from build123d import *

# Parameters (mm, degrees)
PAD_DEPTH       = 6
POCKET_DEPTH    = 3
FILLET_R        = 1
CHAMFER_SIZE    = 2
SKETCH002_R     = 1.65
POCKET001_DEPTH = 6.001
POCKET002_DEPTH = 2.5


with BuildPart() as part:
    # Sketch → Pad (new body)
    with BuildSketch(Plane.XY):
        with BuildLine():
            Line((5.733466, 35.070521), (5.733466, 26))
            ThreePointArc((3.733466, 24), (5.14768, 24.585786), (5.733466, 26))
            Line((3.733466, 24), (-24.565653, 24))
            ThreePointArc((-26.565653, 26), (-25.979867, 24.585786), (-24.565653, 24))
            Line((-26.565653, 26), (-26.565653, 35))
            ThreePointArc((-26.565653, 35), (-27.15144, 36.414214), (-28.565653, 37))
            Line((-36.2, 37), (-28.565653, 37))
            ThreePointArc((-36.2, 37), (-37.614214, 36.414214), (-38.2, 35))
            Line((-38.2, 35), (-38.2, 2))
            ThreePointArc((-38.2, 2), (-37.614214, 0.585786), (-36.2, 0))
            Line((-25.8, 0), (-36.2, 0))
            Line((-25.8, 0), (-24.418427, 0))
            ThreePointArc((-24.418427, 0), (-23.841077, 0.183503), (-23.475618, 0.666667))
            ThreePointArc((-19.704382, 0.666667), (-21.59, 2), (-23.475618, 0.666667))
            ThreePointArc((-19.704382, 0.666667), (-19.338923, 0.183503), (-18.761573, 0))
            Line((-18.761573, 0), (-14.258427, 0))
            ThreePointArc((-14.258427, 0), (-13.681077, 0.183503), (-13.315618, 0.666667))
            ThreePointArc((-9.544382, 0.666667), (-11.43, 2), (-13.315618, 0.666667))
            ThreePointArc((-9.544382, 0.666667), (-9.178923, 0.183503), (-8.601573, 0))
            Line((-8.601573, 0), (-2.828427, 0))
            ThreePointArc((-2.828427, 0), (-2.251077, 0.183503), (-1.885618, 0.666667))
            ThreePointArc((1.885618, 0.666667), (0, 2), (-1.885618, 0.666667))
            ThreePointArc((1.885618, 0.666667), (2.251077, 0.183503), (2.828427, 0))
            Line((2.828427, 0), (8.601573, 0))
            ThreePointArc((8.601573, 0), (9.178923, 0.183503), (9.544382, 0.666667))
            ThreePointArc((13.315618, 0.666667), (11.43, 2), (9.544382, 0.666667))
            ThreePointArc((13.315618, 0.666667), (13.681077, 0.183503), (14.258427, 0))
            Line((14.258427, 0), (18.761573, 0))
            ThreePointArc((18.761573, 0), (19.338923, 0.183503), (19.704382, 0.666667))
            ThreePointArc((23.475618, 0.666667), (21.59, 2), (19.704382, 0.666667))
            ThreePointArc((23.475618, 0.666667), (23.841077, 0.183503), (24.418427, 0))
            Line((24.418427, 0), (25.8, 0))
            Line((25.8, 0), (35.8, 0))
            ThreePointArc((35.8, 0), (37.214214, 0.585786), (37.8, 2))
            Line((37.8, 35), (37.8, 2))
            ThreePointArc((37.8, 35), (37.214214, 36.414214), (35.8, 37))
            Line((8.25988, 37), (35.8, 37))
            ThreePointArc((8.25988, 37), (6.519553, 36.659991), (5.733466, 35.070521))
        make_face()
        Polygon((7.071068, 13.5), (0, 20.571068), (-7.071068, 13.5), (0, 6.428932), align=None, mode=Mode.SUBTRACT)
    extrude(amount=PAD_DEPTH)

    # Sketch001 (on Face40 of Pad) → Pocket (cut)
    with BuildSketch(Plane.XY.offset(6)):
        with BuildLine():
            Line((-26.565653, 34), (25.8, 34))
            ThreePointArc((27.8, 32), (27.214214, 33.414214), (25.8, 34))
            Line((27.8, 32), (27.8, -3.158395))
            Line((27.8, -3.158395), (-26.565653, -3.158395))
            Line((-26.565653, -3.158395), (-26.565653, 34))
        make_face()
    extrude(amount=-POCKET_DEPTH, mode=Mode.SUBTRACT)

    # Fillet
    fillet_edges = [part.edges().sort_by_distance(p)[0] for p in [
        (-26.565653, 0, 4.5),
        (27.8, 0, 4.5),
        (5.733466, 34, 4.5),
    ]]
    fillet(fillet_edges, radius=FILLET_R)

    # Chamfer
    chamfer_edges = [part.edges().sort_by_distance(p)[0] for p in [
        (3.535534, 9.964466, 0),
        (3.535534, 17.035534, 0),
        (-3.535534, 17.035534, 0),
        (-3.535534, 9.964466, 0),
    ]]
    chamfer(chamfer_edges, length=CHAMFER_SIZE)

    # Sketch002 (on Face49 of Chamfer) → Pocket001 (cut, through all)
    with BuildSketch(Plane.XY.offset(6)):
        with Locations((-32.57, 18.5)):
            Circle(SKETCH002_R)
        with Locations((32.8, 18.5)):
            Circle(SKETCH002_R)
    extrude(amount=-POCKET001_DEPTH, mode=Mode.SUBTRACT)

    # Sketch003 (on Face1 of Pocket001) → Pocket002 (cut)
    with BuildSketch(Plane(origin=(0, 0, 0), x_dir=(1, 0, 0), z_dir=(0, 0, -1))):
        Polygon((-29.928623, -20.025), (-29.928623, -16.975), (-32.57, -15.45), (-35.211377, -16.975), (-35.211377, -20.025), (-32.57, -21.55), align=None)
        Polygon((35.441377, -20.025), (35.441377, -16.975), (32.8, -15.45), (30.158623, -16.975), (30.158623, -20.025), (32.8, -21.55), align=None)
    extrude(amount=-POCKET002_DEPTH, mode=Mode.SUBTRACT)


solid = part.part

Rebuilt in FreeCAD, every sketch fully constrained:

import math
import FreeCAD as App
import Part
import Sketcher
from FreeCAD import Vector
Q = App.Units.Quantity


def edges_at(feature, points):
    """Names of the edges that pass closest to the given points."""
    edges = feature.Shape.Edges
    near = lambda p: min(range(len(edges)), key=lambda i: edges[i].distToShape(Part.Vertex(*p))[0])
    return sorted({f"Edge{near(p) + 1}" for p in points})

doc = App.newDocument("Part")
body = doc.addObject("PartDesign::Body", "Body")

sketch1 = body.newObject("Sketcher::SketchObject", "Sketch")
sketch1.AttachmentSupport = (doc.getObject("XY_Plane"), [""])
sketch1.MapMode = "FlatFace"
sketch1.addGeometry(Part.LineSegment(Vector(5.7, 35.1, 0), Vector(5.7, 26, 0)), False)
sketch1.addGeometry(Part.ArcOfCircle(Part.Circle(Vector(3.7, 26, 0), Vector(0, 0, 1), 2), math.radians(-90), math.radians(0)), False)
sketch1.addGeometry(Part.LineSegment(Vector(3.7, 24, 0), Vector(-24.6, 24, 0)), False)
sketch1.addGeometry(Part.ArcOfCircle(Part.Circle(Vector(-24.6, 26, 0), Vector(0, 0, 1), 2), math.radians(180), math.radians(270)), False)
sketch1.addGeometry(Part.LineSegment(Vector(-26.6, 26, 0), Vector(-26.6, 35, 0)), False)
sketch1.addGeometry(Part.ArcOfCircle(Part.Circle(Vector(-28.6, 35, 0), Vector(0, 0, 1), 2), math.radians(0), math.radians(90)), False)
sketch1.addGeometry(Part.LineSegment(Vector(-28.6, 37, 0), Vector(-36.2, 37, 0)), False)
sketch1.addGeometry(Part.ArcOfCircle(Part.Circle(Vector(-36.2, 35, 0), Vector(0, 0, 1), 2), math.radians(90), math.radians(180)), False)
sketch1.addGeometry(Part.LineSegment(Vector(-38.2, 35, 0), Vector(-38.2, 2, 0)), False)
sketch1.addGeometry(Part.ArcOfCircle(Part.Circle(Vector(-36.2, 2, 0), Vector(0, 0, 1), 2), math.radians(180), math.radians(270)), False)
sketch1.addGeometry(Part.LineSegment(Vector(-36.2, 0, 0), Vector(-24.4, 0, 0)), False)
sketch1.addGeometry(Part.ArcOfCircle(Part.Circle(Vector(-24.4, 1, 0), Vector(0, 0, 1), 1), math.radians(-90), math.radians(-19)), False)
sketch1.addGeometry(Part.ArcOfCircle(Part.Circle(Vector(-21.6, 0, 0), Vector(0, 0, 1), 2), math.radians(19), math.radians(161)), False)
sketch1.addGeometry(Part.ArcOfCircle(Part.Circle(Vector(-18.8, 1, 0), Vector(0, 0, 1), 1), math.radians(-161), math.radians(-90)), False)
sketch1.addGeometry(Part.LineSegment(Vector(-18.8, 0, 0), Vector(-14.3, 0, 0)), False)
sketch1.addGeometry(Part.ArcOfCircle(Part.Circle(Vector(-14.3, 1, 0), Vector(0, 0, 1), 1), math.radians(-90), math.radians(-19)), False)
sketch1.addGeometry(Part.ArcOfCircle(Part.Circle(Vector(-11.4, 0, 0), Vector(0, 0, 1), 2), math.radians(19), math.radians(161)), False)
sketch1.addGeometry(Part.ArcOfCircle(Part.Circle(Vector(-8.6, 1, 0), Vector(0, 0, 1), 1), math.radians(-161), math.radians(-90)), False)
sketch1.addGeometry(Part.LineSegment(Vector(-8.6, 0, 0), Vector(-2.8, 0, 0)), False)
sketch1.addGeometry(Part.ArcOfCircle(Part.Circle(Vector(-2.8, 1, 0), Vector(0, 0, 1), 1), math.radians(-90), math.radians(-19)), False)
sketch1.addGeometry(Part.ArcOfCircle(Part.Circle(Vector(0, 0, 0), Vector(0, 0, 1), 2), math.radians(19), math.radians(161)), False)
sketch1.addGeometry(Part.ArcOfCircle(Part.Circle(Vector(2.8, 1, 0), Vector(0, 0, 1), 1), math.radians(-161), math.radians(-90)), False)
sketch1.addGeometry(Part.LineSegment(Vector(2.8, 0, 0), Vector(8.6, 0, 0)), False)
sketch1.addGeometry(Part.ArcOfCircle(Part.Circle(Vector(8.6, 1, 0), Vector(0, 0, 1), 1), math.radians(-90), math.radians(-19)), False)
sketch1.addGeometry(Part.ArcOfCircle(Part.Circle(Vector(11.4, 0, 0), Vector(0, 0, 1), 2), math.radians(19), math.radians(161)), False)
sketch1.addGeometry(Part.ArcOfCircle(Part.Circle(Vector(14.3, 1, 0), Vector(0, 0, 1), 1), math.radians(-161), math.radians(-90)), False)
sketch1.addGeometry(Part.LineSegment(Vector(14.3, 0, 0), Vector(18.8, 0, 0)), False)
sketch1.addGeometry(Part.ArcOfCircle(Part.Circle(Vector(18.8, 1, 0), Vector(0, 0, 1), 1), math.radians(-90), math.radians(-19)), False)
sketch1.addGeometry(Part.ArcOfCircle(Part.Circle(Vector(21.6, 0, 0), Vector(0, 0, 1), 2), math.radians(19), math.radians(161)), False)
sketch1.addGeometry(Part.ArcOfCircle(Part.Circle(Vector(24.4, 1, 0), Vector(0, 0, 1), 1), math.radians(-161), math.radians(-90)), False)
sketch1.addGeometry(Part.LineSegment(Vector(24.4, 0, 0), Vector(35.8, 0, 0)), False)
sketch1.addGeometry(Part.ArcOfCircle(Part.Circle(Vector(35.8, 2, 0), Vector(0, 0, 1), 2), math.radians(-90), math.radians(0)), False)
sketch1.addGeometry(Part.LineSegment(Vector(37.8, 2, 0), Vector(37.8, 35, 0)), False)
sketch1.addGeometry(Part.ArcOfCircle(Part.Circle(Vector(35.8, 35, 0), Vector(0, 0, 1), 2), math.radians(0), math.radians(90)), False)
sketch1.addGeometry(Part.LineSegment(Vector(35.8, 37, 0), Vector(8.3, 37, 0)), False)
sketch1.addGeometry(Part.ArcOfCircle(Part.Circle(Vector(7.7, 35.1, 0), Vector(0, 0, 1), 2), math.radians(75), math.radians(180)), False)
sketch1.addGeometry(Part.LineSegment(Vector(0, 20.6, 0), Vector(7.1, 13.5, 0)), False)
sketch1.addGeometry(Part.LineSegment(Vector(7.1, 13.5, 0), Vector(0, 6.4, 0)), False)
sketch1.addGeometry(Part.LineSegment(Vector(0, 6.4, 0), Vector(-7.1, 13.5, 0)), False)
sketch1.addGeometry(Part.LineSegment(Vector(-7.1, 13.5, 0), Vector(0, 20.6, 0)), False)
sketch1.addConstraint(Sketcher.Constraint("Tangent", 0, 2, 1, 2))
sketch1.addConstraint(Sketcher.Constraint("Tangent", 1, 1, 2, 1))
sketch1.addConstraint(Sketcher.Constraint("Tangent", 2, 2, 3, 2))
sketch1.addConstraint(Sketcher.Constraint("Tangent", 3, 1, 4, 1))
sketch1.addConstraint(Sketcher.Constraint("Tangent", 4, 2, 5, 1))
sketch1.addConstraint(Sketcher.Constraint("Tangent", 5, 2, 6, 1))
sketch1.addConstraint(Sketcher.Constraint("Tangent", 6, 2, 7, 1))
sketch1.addConstraint(Sketcher.Constraint("Tangent", 7, 2, 8, 1))
sketch1.addConstraint(Sketcher.Constraint("Tangent", 8, 2, 9, 1))
sketch1.addConstraint(Sketcher.Constraint("Tangent", 9, 2, 10, 1))
sketch1.addConstraint(Sketcher.Constraint("Tangent", 10, 2, 11, 1))
sketch1.addConstraint(Sketcher.Constraint("Tangent", 11, 2, 12, 2))
sketch1.addConstraint(Sketcher.Constraint("Tangent", 12, 1, 13, 1))
sketch1.addConstraint(Sketcher.Constraint("Tangent", 13, 2, 14, 1))
sketch1.addConstraint(Sketcher.Constraint("Tangent", 14, 2, 15, 1))
sketch1.addConstraint(Sketcher.Constraint("Tangent", 15, 2, 16, 2))
sketch1.addConstraint(Sketcher.Constraint("Tangent", 16, 1, 17, 1))
sketch1.addConstraint(Sketcher.Constraint("Tangent", 17, 2, 18, 1))
sketch1.addConstraint(Sketcher.Constraint("Tangent", 18, 2, 19, 1))
sketch1.addConstraint(Sketcher.Constraint("Tangent", 19, 2, 20, 2))
sketch1.addConstraint(Sketcher.Constraint("Tangent", 20, 1, 21, 1))
sketch1.addConstraint(Sketcher.Constraint("Tangent", 21, 2, 22, 1))
sketch1.addConstraint(Sketcher.Constraint("Tangent", 22, 2, 23, 1))
sketch1.addConstraint(Sketcher.Constraint("Tangent", 23, 2, 24, 2))
sketch1.addConstraint(Sketcher.Constraint("Tangent", 24, 1, 25, 1))
sketch1.addConstraint(Sketcher.Constraint("Tangent", 25, 2, 26, 1))
sketch1.addConstraint(Sketcher.Constraint("Tangent", 26, 2, 27, 1))
sketch1.addConstraint(Sketcher.Constraint("Tangent", 27, 2, 28, 2))
sketch1.addConstraint(Sketcher.Constraint("Tangent", 28, 1, 29, 1))
sketch1.addConstraint(Sketcher.Constraint("Tangent", 29, 2, 30, 1))
sketch1.addConstraint(Sketcher.Constraint("Tangent", 30, 2, 31, 1))
sketch1.addConstraint(Sketcher.Constraint("Tangent", 31, 2, 32, 1))
sketch1.addConstraint(Sketcher.Constraint("Tangent", 32, 2, 33, 1))
sketch1.addConstraint(Sketcher.Constraint("Tangent", 33, 2, 34, 1))
sketch1.addConstraint(Sketcher.Constraint("Coincident", 34, 2, 35, 1))
sketch1.addConstraint(Sketcher.Constraint("Tangent", 35, 2, 0, 1))
sketch1.addConstraint(Sketcher.Constraint("Coincident", 36, 2, 37, 1))
sketch1.addConstraint(Sketcher.Constraint("Coincident", 37, 2, 38, 1))
sketch1.addConstraint(Sketcher.Constraint("Coincident", 38, 2, 39, 1))
sketch1.addConstraint(Sketcher.Constraint("Coincident", 39, 2, 36, 1))
sketch1.addConstraint(Sketcher.Constraint("Vertical", 0))
sketch1.addConstraint(Sketcher.Constraint("Horizontal", 2))
sketch1.addConstraint(Sketcher.Constraint("Vertical", 4))
sketch1.addConstraint(Sketcher.Constraint("Horizontal", 6))
sketch1.addConstraint(Sketcher.Constraint("Vertical", 8))
sketch1.addConstraint(Sketcher.Constraint("Horizontal", 10))
sketch1.addConstraint(Sketcher.Constraint("Horizontal", 14))
sketch1.addConstraint(Sketcher.Constraint("Horizontal", 18))
sketch1.addConstraint(Sketcher.Constraint("Horizontal", 22))
sketch1.addConstraint(Sketcher.Constraint("Horizontal", 26))
sketch1.addConstraint(Sketcher.Constraint("Horizontal", 30))
sketch1.addConstraint(Sketcher.Constraint("Vertical", 32))
sketch1.addConstraint(Sketcher.Constraint("Horizontal", 34))
sketch1.addConstraint(Sketcher.Constraint("Coincident", 20, 3, -1, 1))
sketch1.addConstraint(Sketcher.Constraint("Equal", 1, 3))
sketch1.addConstraint(Sketcher.Constraint("Equal", 3, 5))
sketch1.addConstraint(Sketcher.Constraint("Equal", 5, 7))
sketch1.addConstraint(Sketcher.Constraint("Equal", 7, 9))
sketch1.addConstraint(Sketcher.Constraint("Equal", 9, 12))
sketch1.addConstraint(Sketcher.Constraint("Equal", 11, 13))
sketch1.addConstraint(Sketcher.Constraint("Equal", 13, 15))
sketch1.addConstraint(Sketcher.Constraint("Equal", 12, 16))
sketch1.addConstraint(Sketcher.Constraint("Equal", 15, 17))
sketch1.addConstraint(Sketcher.Constraint("Equal", 17, 19))
sketch1.addConstraint(Sketcher.Constraint("Equal", 16, 20))
sketch1.addConstraint(Sketcher.Constraint("Equal", 19, 21))
sketch1.addConstraint(Sketcher.Constraint("Equal", 21, 23))
sketch1.addConstraint(Sketcher.Constraint("Equal", 20, 24))
sketch1.addConstraint(Sketcher.Constraint("Equal", 23, 25))
sketch1.addConstraint(Sketcher.Constraint("Equal", 25, 27))
sketch1.addConstraint(Sketcher.Constraint("Equal", 24, 28))
sketch1.addConstraint(Sketcher.Constraint("Equal", 27, 29))
sketch1.addConstraint(Sketcher.Constraint("Equal", 28, 31))
sketch1.addConstraint(Sketcher.Constraint("Equal", 31, 33))
sketch1.addConstraint(Sketcher.Constraint("Equal", 33, 35))
sketch1.addConstraint(Sketcher.Constraint("Symmetric", 16, 3, 24, 3, -1, 1))
sketch1.addConstraint(Sketcher.Constraint("Symmetric", 12, 3, 28, 3, -1, 1))
sketch1.addConstraint(Sketcher.Constraint("Symmetric", 18, 2, 21, 2, -1, 1))
sketch1.addConstraint(Sketcher.Constraint("Symmetric", 14, 2, 25, 2, -1, 1))
sketch1.addConstraint(Sketcher.Constraint("Symmetric", 10, 2, 29, 2, -1, 1))
sketch1.addConstraint(Sketcher.Constraint("Symmetric", 13, 3, 27, 3, -2))
sketch1.addConstraint(Sketcher.Constraint("Symmetric", 36, 2, 38, 2, -2))
sketch1.addConstraint(Sketcher.Constraint("PointOnObject", 37, 2, -2))
sketch1.addConstraint(Sketcher.Constraint("PointOnObject", 39, 2, -2))
sketch1.addConstraint(Sketcher.Constraint("Perpendicular", 36, 37))
sketch1.addConstraint(Sketcher.Constraint("Perpendicular", 37, 38))
sketch1.addConstraint(Sketcher.Constraint("Horizontal", 7, 3, 33, 3))
sketch1.addConstraint(Sketcher.Constraint("Radius", 1, Q("1.999999 mm")))
sketch1.addConstraint(Sketcher.Constraint("Radius", 11, Q("0.999999 mm")))
sketch1.addConstraint(Sketcher.Constraint("DistanceY", 4, 1, 4, 2, Q("9 mm")))
sketch1.addConstraint(Sketcher.Constraint("DistanceY", 8, 2, 8, 1, Q("33 mm")))
sketch1.addConstraint(Sketcher.Constraint("Distance", 36, Q("10 mm")))
sketch1.addConstraint(Sketcher.Constraint("DistanceX", 7, 3, -1, 1, Q("36.200001 mm")))
sketch1.addConstraint(Sketcher.Constraint("DistanceX", -1, 1, 31, 3, Q("35.800001 mm")))
sketch1.addConstraint(Sketcher.Constraint("DistanceY", -1, 1, 36, 2, Q("13.5 mm")))
sketch1.addConstraint(Sketcher.Constraint("DistanceX", 12, 3, -1, 1, Q("21.59 mm")))
sketch1.addConstraint(Sketcher.Constraint("DistanceX", 16, 3, -1, 1, Q("11.43 mm")))
sketch1.addConstraint(Sketcher.Constraint("DistanceX", 2, 2, 2, 1, Q("28.299119 mm")))
sketch1.addConstraint(Sketcher.Constraint("DistanceX", 34, 2, 34, 1, Q("27.54012 mm")))
sketch1.addConstraint(Sketcher.Constraint("DistanceY", 0, 2, 0, 1, Q("9.070521 mm")))
pad1 = body.newObject("PartDesign::Pad", "Pad")
pad1.Profile = sketch1
pad1.Length = 6

sketch2 = body.newObject("Sketcher::SketchObject", "Sketch001")
sketch2.AttachmentSupport = (doc.getObject("XY_Plane"), [""])
sketch2.MapMode = "FlatFace"
sketch2.AttachmentOffset = App.Placement(Vector(0, 0, 6), App.Rotation())
sketch2.addGeometry(Part.LineSegment(Vector(25.8, 34, 0), Vector(-26.6, 34, 0)), False)
sketch2.addGeometry(Part.LineSegment(Vector(-26.6, 34, 0), Vector(-26.6, -3.2, 0)), False)
sketch2.addGeometry(Part.LineSegment(Vector(-26.6, -3.2, 0), Vector(27.8, -3.2, 0)), False)
sketch2.addGeometry(Part.LineSegment(Vector(27.8, -3.2, 0), Vector(27.8, 32, 0)), False)
sketch2.addGeometry(Part.ArcOfCircle(Part.Circle(Vector(25.8, 32, 0), Vector(0, 0, 1), 2), math.radians(0), math.radians(90)), False)
sketch2.addConstraint(Sketcher.Constraint("Coincident", 0, 2, 1, 1))
sketch2.addConstraint(Sketcher.Constraint("Coincident", 1, 2, 2, 1))
sketch2.addConstraint(Sketcher.Constraint("Coincident", 2, 2, 3, 1))
sketch2.addConstraint(Sketcher.Constraint("Tangent", 3, 2, 4, 1))
sketch2.addConstraint(Sketcher.Constraint("Tangent", 4, 2, 0, 1))
sketch2.addConstraint(Sketcher.Constraint("Horizontal", 0))
sketch2.addConstraint(Sketcher.Constraint("Vertical", 1))
sketch2.addConstraint(Sketcher.Constraint("Horizontal", 2))
sketch2.addConstraint(Sketcher.Constraint("Vertical", 3))
sketch2.addConstraint(Sketcher.Constraint("Radius", 4, Q("1.999999 mm")))
sketch2.addConstraint(Sketcher.Constraint("DistanceY", -1, 1, 4, 3, Q("32.000001 mm")))
sketch2.addConstraint(Sketcher.Constraint("DistanceX", -1, 1, 4, 3, Q("25.800001 mm")))
sketch2.addConstraint(Sketcher.Constraint("DistanceX", 0, 2, 0, 1, Q("52.365653 mm")))
sketch2.addConstraint(Sketcher.Constraint("DistanceY", 1, 2, 1, 1, Q("37.158395 mm")))
pocket1 = body.newObject("PartDesign::Pocket", "Pocket")
pocket1.Profile = sketch2
pocket1.Length = 3
doc.recompute()

fillet = body.newObject("PartDesign::Fillet", "Fillet")
fillet.Base = (pocket1, edges_at(pocket1, [(-26.566, 0, 4.5), (27.8, 0, 4.5), (5.733, 34, 4.5)]))
fillet.Radius = 1
doc.recompute()

chamfer = body.newObject("PartDesign::Chamfer", "Chamfer")
chamfer.Base = (fillet, edges_at(fillet, [
    (3.536, 9.964, 0),
    (3.536, 17.036, 0),
    (-3.536, 17.036, 0),
    (-3.536, 9.964, 0),
]))
chamfer.Size = 2

sketch3 = body.newObject("Sketcher::SketchObject", "Sketch002")
sketch3.AttachmentSupport = (doc.getObject("XY_Plane"), [""])
sketch3.MapMode = "FlatFace"
sketch3.AttachmentOffset = App.Placement(Vector(0, 0, 6), App.Rotation())
sketch3.addGeometry(Part.Circle(Vector(-32.6, 18.5, 0), Vector(0, 0, 1), 1.6), False)
sketch3.addGeometry(Part.Circle(Vector(32.8, 18.5, 0), Vector(0, 0, 1), 1.6), False)
sketch3.addConstraint(Sketcher.Constraint("Equal", 0, 1))
sketch3.addConstraint(Sketcher.Constraint("Horizontal", 0, 3, 1, 3))
sketch3.addConstraint(Sketcher.Constraint("Diameter", 0, Q("3.3 mm")))
sketch3.addConstraint(Sketcher.Constraint("DistanceY", -1, 1, 0, 3, Q("18.5 mm")))
sketch3.addConstraint(Sketcher.Constraint("DistanceX", -1, 1, 1, 3, Q("32.8 mm")))
sketch3.addConstraint(Sketcher.Constraint("DistanceX", 0, 3, -1, 1, Q("32.57 mm")))
pocket2 = body.newObject("PartDesign::Pocket", "Pocket001")
pocket2.Profile = sketch3
pocket2.Type = "ThroughAll"

sketch4 = body.newObject("Sketcher::SketchObject", "Sketch003")
sketch4.AttachmentSupport = (doc.getObject("XY_Plane"), [""])
sketch4.MapMode = "FlatFace"
sketch4.addGeometry(Part.LineSegment(Vector(-29.9, 20, 0), Vector(-29.9, 17, 0)), False)
sketch4.addGeometry(Part.LineSegment(Vector(-29.9, 17, 0), Vector(-32.6, 15.4, 0)), False)
sketch4.addGeometry(Part.LineSegment(Vector(-32.6, 15.4, 0), Vector(-35.2, 17, 0)), False)
sketch4.addGeometry(Part.LineSegment(Vector(-35.2, 17, 0), Vector(-35.2, 20, 0)), False)
sketch4.addGeometry(Part.LineSegment(Vector(-35.2, 20, 0), Vector(-32.6, 21.6, 0)), False)
sketch4.addGeometry(Part.LineSegment(Vector(-32.6, 21.6, 0), Vector(-29.9, 20, 0)), False)
sketch4.addGeometry(Part.LineSegment(Vector(35.4, 20, 0), Vector(35.4, 17, 0)), False)
sketch4.addGeometry(Part.LineSegment(Vector(35.4, 17, 0), Vector(32.8, 15.4, 0)), False)
sketch4.addGeometry(Part.LineSegment(Vector(32.8, 15.4, 0), Vector(30.2, 17, 0)), False)
sketch4.addGeometry(Part.LineSegment(Vector(30.2, 17, 0), Vector(30.2, 20, 0)), False)
sketch4.addGeometry(Part.LineSegment(Vector(30.2, 20, 0), Vector(32.8, 21.6, 0)), False)
sketch4.addGeometry(Part.LineSegment(Vector(32.8, 21.6, 0), Vector(35.4, 20, 0)), False)
sketch4.addConstraint(Sketcher.Constraint("Coincident", 0, 2, 1, 1))
sketch4.addConstraint(Sketcher.Constraint("Coincident", 1, 2, 2, 1))
sketch4.addConstraint(Sketcher.Constraint("Coincident", 2, 2, 3, 1))
sketch4.addConstraint(Sketcher.Constraint("Coincident", 3, 2, 4, 1))
sketch4.addConstraint(Sketcher.Constraint("Coincident", 4, 2, 5, 1))
sketch4.addConstraint(Sketcher.Constraint("Coincident", 5, 2, 0, 1))
sketch4.addConstraint(Sketcher.Constraint("Coincident", 6, 2, 7, 1))
sketch4.addConstraint(Sketcher.Constraint("Coincident", 7, 2, 8, 1))
sketch4.addConstraint(Sketcher.Constraint("Coincident", 8, 2, 9, 1))
sketch4.addConstraint(Sketcher.Constraint("Coincident", 9, 2, 10, 1))
sketch4.addConstraint(Sketcher.Constraint("Coincident", 10, 2, 11, 1))
sketch4.addConstraint(Sketcher.Constraint("Coincident", 11, 2, 6, 1))
sketch4.addConstraint(Sketcher.Constraint("Vertical", 0))
sketch4.addConstraint(Sketcher.Constraint("Vertical", 3))
sketch4.addConstraint(Sketcher.Constraint("Vertical", 6))
sketch4.addConstraint(Sketcher.Constraint("Vertical", 9))
sketch4.addConstraint(Sketcher.Constraint("Parallel", 1, 4))
sketch4.addConstraint(Sketcher.Constraint("Parallel", 2, 5))
sketch4.addConstraint(Sketcher.Constraint("Parallel", 4, 7))
sketch4.addConstraint(Sketcher.Constraint("Parallel", 5, 8))
sketch4.addConstraint(Sketcher.Constraint("Parallel", 7, 10))
sketch4.addConstraint(Sketcher.Constraint("Parallel", 8, 11))
sketch4.addConstraint(Sketcher.Constraint("Horizontal", 0, 2, 2, 2))
sketch4.addConstraint(Sketcher.Constraint("Horizontal", 3, 2, 5, 2))
sketch4.addConstraint(Sketcher.Constraint("Horizontal", 2, 2, 6, 2))
sketch4.addConstraint(Sketcher.Constraint("Horizontal", 1, 2, 7, 2))
sketch4.addConstraint(Sketcher.Constraint("Horizontal", 6, 2, 8, 2))
sketch4.addConstraint(Sketcher.Constraint("Horizontal", 5, 2, 9, 2))
sketch4.addConstraint(Sketcher.Constraint("Horizontal", 4, 2, 10, 2))
sketch4.addConstraint(Sketcher.Constraint("Vertical", 1, 2, 4, 2))
sketch4.addConstraint(Sketcher.Constraint("Angle", 1, Q("-149.999995 deg")))
sketch4.addConstraint(Sketcher.Constraint("DistanceY", 0, 2, 0, 1, Q("3.05 mm")))
sketch4.addConstraint(Sketcher.Constraint("DistanceX", -1, 1, 7, 2, Q("32.8 mm")))
sketch4.addConstraint(Sketcher.Constraint("DistanceY", 1, 2, 4, 2, Q("6.1 mm")))
sketch4.addConstraint(Sketcher.Constraint("DistanceX", 1, 2, -1, 1, Q("32.57 mm")))
sketch4.addConstraint(Sketcher.Constraint("DistanceY", -1, 1, 1, 2, Q("15.45 mm")))
pocket3 = body.newObject("PartDesign::Pocket", "Pocket002")
pocket3.Profile = sketch4
pocket3.Length = 2.5
pocket3.Reversed = True

doc.recompute()
